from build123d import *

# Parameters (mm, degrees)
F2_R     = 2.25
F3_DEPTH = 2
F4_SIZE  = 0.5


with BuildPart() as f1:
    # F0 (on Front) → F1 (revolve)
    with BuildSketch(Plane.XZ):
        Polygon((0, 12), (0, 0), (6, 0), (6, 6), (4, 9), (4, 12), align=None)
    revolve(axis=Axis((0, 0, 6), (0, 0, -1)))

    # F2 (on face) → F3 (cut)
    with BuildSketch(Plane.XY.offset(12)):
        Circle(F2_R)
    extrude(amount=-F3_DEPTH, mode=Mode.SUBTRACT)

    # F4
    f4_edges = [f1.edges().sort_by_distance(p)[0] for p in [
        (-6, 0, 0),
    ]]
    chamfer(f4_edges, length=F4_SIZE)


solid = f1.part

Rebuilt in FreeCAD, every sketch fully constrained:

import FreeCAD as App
import Part
import Sketcher

V = App.Vector
Q = App.Units.Quantity


def edges_at(feature, points):
    """Names of the edges that pass closest to the given points."""
    edges = feature.Shape.Edges
    near = lambda p: min(range(len(edges)), key=lambda i: edges[i].distToShape(Part.Vertex(*p))[0])
    return sorted({f"Edge{near(p) + 1}" for p in points})


def add_polygon(sketch, points):
    """Adds a closed chain of lines whose ends are joined by coincident constraints."""
    first, n = sketch.GeometryCount, len(points)
    for a, b in zip(points, points[1:] + points[:1]):
        sketch.addGeometry(Part.LineSegment(App.Vector(*a, 0), App.Vector(*b, 0)), False)
    for i in range(n):
        sketch.addConstraint(Sketcher.Constraint("Coincident", first + i, 2, first + (i + 1) % n, 1))

doc = App.newDocument("Part")
body = doc.addObject("PartDesign::Body", "Body")

# Sketch on XZ plane
sketch1 = body.newObject("Sketcher::SketchObject", "Sketch")
sketch1.AttachmentSupport = (doc.getObject("XZ_Plane"), [""])
sketch1.MapMode = "FlatFace"
add_polygon(sketch1, [(0, 12), (0, 0), (6, 0), (6, 6), (4, 9), (4, 12)])  # lines 0-5
sketch1.addConstraint([
    Sketcher.Constraint("Vertical", 0),
    Sketcher.Constraint("Horizontal", 1),
    Sketcher.Constraint("Vertical", 2),
    Sketcher.Constraint("Vertical", 4),
    Sketcher.Constraint("Horizontal", 5),
    Sketcher.Constraint("Coincident", 0, 2, -1, 1),
    Sketcher.Constraint("Equal", 1, 2),
    Sketcher.Constraint("DistanceX", 1, 1, 1, 2, Q("6 mm")),
    Sketcher.Constraint("DistanceX", 5, 2, 5, 1, Q("4 mm")),
    Sketcher.Constraint("DistanceY", 0, 2, 0, 1, Q("12 mm")),
    Sketcher.Constraint("DistanceY", 4, 1, 4, 2, Q("3 mm")),
])
revolution = body.newObject("PartDesign::Revolution", "Revolution")
revolution.Profile = sketch1
revolution.ReferenceAxis = (sketch1, ["V_Axis"])
revolution.Angle = 360

# Sketch on XY plane
sketch2 = body.newObject("Sketcher::SketchObject", "Sketch001")
sketch2.AttachmentSupport = (doc.getObject("XY_Plane"), [""])
sketch2.MapMode = "FlatFace"
sketch2.AttachmentOffset = App.Placement(V(0, 0, 12), App.Rotation())
sketch2.addGeometry(Part.Circle(V(0, 0, 0), V(0, 0, 1), 2.2), False)
sketch2.addConstraint([
    Sketcher.Constraint("Coincident", 0, 3, -1, 1),
    Sketcher.Constraint("Diameter", 0, Q("4.5 mm")),
])
pocket1 = body.newObject("PartDesign::Pocket", "Pocket")
pocket1.Profile = sketch2
pocket1.Length = 2
doc.recompute()

chamfer = body.newObject("PartDesign::Chamfer", "Chamfer")
chamfer.Base = (pocket1, edges_at(pocket1, [(-6, 0, 0)]))
chamfer.Size = 0.5

doc.recompute()
